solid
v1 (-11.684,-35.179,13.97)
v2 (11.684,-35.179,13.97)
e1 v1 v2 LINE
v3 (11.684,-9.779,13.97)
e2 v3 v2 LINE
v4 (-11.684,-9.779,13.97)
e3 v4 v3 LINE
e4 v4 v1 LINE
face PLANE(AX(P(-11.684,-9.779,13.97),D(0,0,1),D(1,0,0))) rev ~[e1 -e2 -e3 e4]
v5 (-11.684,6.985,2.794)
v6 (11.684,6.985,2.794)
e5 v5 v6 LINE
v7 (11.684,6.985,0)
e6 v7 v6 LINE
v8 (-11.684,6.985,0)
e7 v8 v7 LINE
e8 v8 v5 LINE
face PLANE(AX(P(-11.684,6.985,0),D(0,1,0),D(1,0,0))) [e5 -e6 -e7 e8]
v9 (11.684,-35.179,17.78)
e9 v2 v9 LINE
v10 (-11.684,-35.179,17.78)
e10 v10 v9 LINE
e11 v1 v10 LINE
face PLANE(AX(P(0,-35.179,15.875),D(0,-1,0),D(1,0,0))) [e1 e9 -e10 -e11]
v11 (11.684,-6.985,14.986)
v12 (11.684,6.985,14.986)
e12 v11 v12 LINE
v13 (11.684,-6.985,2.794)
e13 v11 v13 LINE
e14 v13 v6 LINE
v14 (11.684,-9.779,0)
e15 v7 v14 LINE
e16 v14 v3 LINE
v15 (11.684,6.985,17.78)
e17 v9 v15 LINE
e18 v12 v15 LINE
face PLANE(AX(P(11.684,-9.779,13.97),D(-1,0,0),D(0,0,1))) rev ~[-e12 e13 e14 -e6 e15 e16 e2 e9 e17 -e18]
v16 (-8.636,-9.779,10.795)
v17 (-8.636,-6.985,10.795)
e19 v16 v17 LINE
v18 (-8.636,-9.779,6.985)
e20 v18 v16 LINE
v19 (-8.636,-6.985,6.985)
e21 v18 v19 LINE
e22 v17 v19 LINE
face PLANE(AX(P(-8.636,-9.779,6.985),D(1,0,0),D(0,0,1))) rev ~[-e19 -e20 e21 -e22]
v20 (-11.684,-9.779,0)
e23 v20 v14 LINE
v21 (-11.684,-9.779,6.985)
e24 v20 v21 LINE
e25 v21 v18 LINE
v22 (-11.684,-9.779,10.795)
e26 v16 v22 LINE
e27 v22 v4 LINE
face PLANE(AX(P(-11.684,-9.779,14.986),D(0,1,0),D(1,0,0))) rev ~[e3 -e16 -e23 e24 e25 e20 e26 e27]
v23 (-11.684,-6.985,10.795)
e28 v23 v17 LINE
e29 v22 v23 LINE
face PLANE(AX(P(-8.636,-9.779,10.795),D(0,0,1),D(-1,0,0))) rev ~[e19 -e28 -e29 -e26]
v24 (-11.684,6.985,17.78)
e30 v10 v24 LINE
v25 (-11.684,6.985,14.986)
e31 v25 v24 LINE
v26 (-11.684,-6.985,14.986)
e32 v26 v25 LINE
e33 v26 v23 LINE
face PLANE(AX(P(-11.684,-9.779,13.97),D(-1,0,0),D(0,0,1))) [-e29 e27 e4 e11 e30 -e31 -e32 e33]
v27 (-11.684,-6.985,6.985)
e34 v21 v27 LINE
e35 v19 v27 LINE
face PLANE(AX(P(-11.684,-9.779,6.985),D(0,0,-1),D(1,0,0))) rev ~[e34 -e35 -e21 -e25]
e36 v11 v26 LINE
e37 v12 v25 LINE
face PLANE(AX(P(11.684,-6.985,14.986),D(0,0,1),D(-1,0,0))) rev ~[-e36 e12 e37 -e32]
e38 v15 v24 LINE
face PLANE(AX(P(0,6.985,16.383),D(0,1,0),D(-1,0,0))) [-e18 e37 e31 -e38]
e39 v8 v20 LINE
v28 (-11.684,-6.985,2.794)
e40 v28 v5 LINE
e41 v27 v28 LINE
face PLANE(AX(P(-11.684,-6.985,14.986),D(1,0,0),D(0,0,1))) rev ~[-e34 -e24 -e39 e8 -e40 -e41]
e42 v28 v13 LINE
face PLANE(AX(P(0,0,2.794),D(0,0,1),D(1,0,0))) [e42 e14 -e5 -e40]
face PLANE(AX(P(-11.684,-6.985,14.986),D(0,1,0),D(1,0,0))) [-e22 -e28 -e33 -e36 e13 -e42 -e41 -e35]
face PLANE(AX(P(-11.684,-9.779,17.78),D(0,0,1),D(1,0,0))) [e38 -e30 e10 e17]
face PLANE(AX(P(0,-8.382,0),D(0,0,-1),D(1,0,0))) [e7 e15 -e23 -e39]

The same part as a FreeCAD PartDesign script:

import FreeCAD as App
import Part
import Sketcher
from FreeCAD import Vector
Q = App.Units.Quantity

doc = App.newDocument("Part")
body = doc.addObject("PartDesign::Body", "Body")

# Sketch on XY plane
sketch1 = body.newObject("Sketcher::SketchObject", "Sketch")
sketch1.AttachmentSupport = (doc.getObject("XY_Plane"), [""])
sketch1.MapMode = "FlatFace"
sketch1.addGeometry([
    Part.LineSegment(Vector(-11.684, 6.985, 0), Vector(-11.684, -6.985, 0)),
    Part.LineSegment(Vector(-11.684, -6.985, 0), Vector(11.684, -6.985, 0)),
    Part.LineSegment(Vector(11.684, -6.985, 0), Vector(11.684, 6.985, 0)),
    Part.LineSegment(Vector(11.684, 6.985, 0), Vector(-11.684, 6.985, 0)),
], False)
sketch1.addConstraint([
    Sketcher.Constraint("Coincident", 0, 2, 1, 1),
    Sketcher.Constraint("Coincident", 1, 2, 2, 1),
    Sketcher.Constraint("Coincident", 2, 2, 3, 1),
    Sketcher.Constraint("Coincident", 3, 2, 0, 1),
    Sketcher.Constraint("Vertical", 0),
    Sketcher.Constraint("Horizontal", 1),
    Sketcher.Constraint("Vertical", 2),
    Sketcher.Constraint("Horizontal", 3),
    Sketcher.Constraint("Symmetric", 0, 2, 2, 2, -1, 1),
    Sketcher.Constraint("DistanceX", 1, 1, 1, 2, Q("0.92 in")),
    Sketcher.Constraint("DistanceY", 0, 2, 0, 1, Q("0.55 in")),
])
pad1 = body.newObject("PartDesign::Pad", "Pad")
pad1.Profile = sketch1
pad1.Length = Q("0.11 in")

# Sketch on XY plane
sketch2 = body.newObject("Sketcher::SketchObject", "Sketch001")
sketch2.AttachmentSupport = (doc.getObject("XY_Plane"), [""])
sketch2.MapMode = "FlatFace"
sketch2.addGeometry([
    Part.LineSegment(Vector(-11.684, -9.779, 0), Vector(-11.684, -6.985, 0)),
    Part.LineSegment(Vector(-11.684, -6.985, 0), Vector(11.684, -6.985, 0)),
    Part.LineSegment(Vector(11.684, -6.985, 0), Vector(11.684, -9.779, 0)),
    Part.LineSegment(Vector(11.684, -9.779, 0), Vector(-11.684, -9.779, 0)),
], False)
sketch2.addConstraint([
    Sketcher.Constraint("Coincident", 0, 2, 1, 1),
    Sketcher.Constraint("Coincident", 1, 2, 2, 1),
    Sketcher.Constraint("Coincident", 2, 2, 3, 1),
    Sketcher.Constraint("Coincident", 3, 2, 0, 1),
    Sketcher.Constraint("Vertical", 0),
    Sketcher.Constraint("Horizontal", 1),
    Sketcher.Constraint("Vertical", 2),
    Sketcher.Constraint("Horizontal", 3),
    Sketcher.Constraint("DistanceX", 1, 1, 1, 2, Q("0.92 in")),
    Sketcher.Constraint("DistanceY", 0, 1, 0, 2, Q("0.11 in")),
    Sketcher.Constraint("DistanceX", 0, 2, -1, 1, Q("0.46 in")),
    Sketcher.Constraint("DistanceY", 0, 2, -1, 1, Q("0.275 in")),
])
pad2 = body.newObject("PartDesign::Pad", "Pad001")
pad2.Profile = sketch2
pad2.Length = Q("0.59 in")

# Sketch on XY plane
sketch3 = body.newObject("Sketcher::SketchObject", "Sketch002")
sketch3.AttachmentSupport = (doc.getObject("XY_Plane"), [""])
sketch3.MapMode = "FlatFace"
sketch3.AttachmentOffset = App.Placement(Vector(0, 0, 0.59 * 25.4), App.Rotation())
sketch3.addGeometry([
    Part.LineSegment(Vector(-11.684, -6.985, 0), Vector(-11.684, -9.779, 0)),
    Part.LineSegment(Vector(-11.684, -9.779, 0), Vector(11.684, -9.779, 0)),
    Part.LineSegment(Vector(11.684, -9.779, 0), Vector(11.684, -6.985, 0)),
    Part.LineSegment(Vector(11.684, -6.985, 0), Vector(-11.684, -6.985, 0)),
], False)
sketch3.addConstraint([
    Sketcher.Constraint("Coincident", 0, 2, 1, 1),
    Sketcher.Constraint("Coincident", 1, 2, 2, 1),
    Sketcher.Constraint("Coincident", 2, 2, 3, 1),
    Sketcher.Constraint("Coincident", 3, 2, 0, 1),
    Sketcher.Constraint("Vertical", 0),
    Sketcher.Constraint("Horizontal", 1),
    Sketcher.Constraint("Vertical", 2),
    Sketcher.Constraint("Horizontal", 3),
    Sketcher.Constraint("DistanceX", 1, 1, 1, 2, Q("0.92 in")),
    Sketcher.Constraint("DistanceY", 0, 2, 0, 1, Q("0.11 in")),
    Sketcher.Constraint("DistanceX", 0, 2, -1, 1, Q("0.46 in")),
    Sketcher.Constraint("DistanceY", 0, 2, -1, 1, Q("0.385 in")),
])
pad3 = body.newObject("PartDesign::Pad", "Pad002")
pad3.Profile = sketch3
pad3.Length = Q("0.11 in")

# Sketch on XZ plane
sketch4 = body.newObject("Sketcher::SketchObject", "Sketch003")
sketch4.AttachmentSupport = (doc.getObject("XZ_Plane"), [""])
sketch4.MapMode = "FlatFace"
sketch4.AttachmentOffset = App.Placement(Vector(0, 0, 0.275 * 25.4), App.Rotation())
sketch4.addGeometry([
    Part.LineSegment(Vector(11.684, 17.78, 0), Vector(11.684, 14.986, 0)),
    Part.LineSegment(Vector(11.684, 14.986, 0), Vector(-11.684, 14.986, 0)),
    Part.LineSegment(Vector(-11.684, 14.986, 0), Vector(-11.684, 17.78, 0)),
    Part.LineSegment(Vector(-11.684, 17.78, 0), Vector(11.684, 17.78, 0)),
], False)
sketch4.addConstraint([
    Sketcher.Constraint("Coincident", 0, 2, 1, 1),
    Sketcher.Constraint("Coincident", 1, 2, 2, 1),
    Sketcher.Constraint("Coincident", 2, 2, 3, 1),
    Sketcher.Constraint("Coincident", 3, 2, 0, 1),
    Sketcher.Constraint("Vertical", 0),
    Sketcher.Constraint("Horizontal", 1),
    Sketcher.Constraint("Vertical", 2),
    Sketcher.Constraint("Horizontal", 3),
    Sketcher.Constraint("DistanceX", 1, 2, 1, 1, Q("0.92 in")),
    Sketcher.Constraint("DistanceY", 0, 2, 0, 1, Q("0.11 in")),
    Sketcher.Constraint("DistanceY", -1, 1, 2, 2, Q("0.7 in")),
    Sketcher.Constraint("DistanceX", -1, 1, 0, 2, Q("0.46 in")),
])
pad4 = body.newObject("PartDesign::Pad", "Pad003")
pad4.Profile = sketch4
pad4.Length = Q("0.55 in")
pad4.Reversed = True

# Sketch on XZ plane
sketch5 = body.newObject("Sketcher::SketchObject", "Sketch004")
sketch5.AttachmentSupport = (doc.getObject("XZ_Plane"), [""])
sketch5.MapMode = "FlatFace"
sketch5.AttachmentOffset = App.Placement(Vector(0, 0, 0.385 * 25.4), App.Rotation())
sketch5.addGeometry([
    Part.LineSegment(Vector(-8.636, 10.795, 0), Vector(-11.684, 10.795, 0)),
    Part.LineSegment(Vector(-11.684, 10.795, 0), Vector(-11.684, 6.985, 0)),
    Part.LineSegment(Vector(-11.684, 6.985, 0), Vector(-8.636, 6.985, 0)),
    Part.LineSegment(Vector(-8.636, 6.985, 0), Vector(-8.636, 10.795, 0)),
], False)
sketch5.addConstraint([
    Sketcher.Constraint("Coincident", 0, 2, 1, 1),
    Sketcher.Constraint("Coincident", 1, 2, 2, 1),
    Sketcher.Constraint("Coincident", 2, 2, 3, 1),
    Sketcher.Constraint("Coincident", 3, 2, 0, 1),
    Sketcher.Constraint("Horizontal", 0),
    Sketcher.Constraint("Vertical", 1),
    Sketcher.Constraint("Horizontal", 2),
    Sketcher.Constraint("Vertical", 3),
    Sketcher.Constraint("DistanceX", 0, 2, 0, 1, Q("0.12 in")),
    Sketcher.Constraint("DistanceY", 1, 2, 1, 1, Q("0.15 in")),
    Sketcher.Constraint("DistanceX", 0, 2, -1, 1, Q("0.46 in")),
    Sketcher.Constraint("DistanceY", -1, 1, 0, 2, Q("0.425 in")),
])
pocket1 = body.newObject("PartDesign::Pocket", "Pocket")
pocket1.Profile = sketch5
pocket1.Length = Q("1 in")

# Sketch on XZ plane
sketch6 = body.newObject("Sketcher::SketchObject", "Sketch005")
sketch6.AttachmentSupport = (doc.getObject("XZ_Plane"), [""])
sketch6.MapMode = "FlatFace"
sketch6.AttachmentOffset = App.Placement(Vector(0, 0, 0.385 * 25.4), App.Rotation())
sketch6.addGeometry([
    Part.LineSegment(Vector(-11.684, 17.78, 0), Vector(-11.684, 13.97, 0)),
    Part.LineSegment(Vector(-11.684, 13.97, 0), Vector(11.684, 13.97, 0)),
    Part.LineSegment(Vector(11.684, 13.97, 0), Vector(11.684, 17.78, 0)),
    Part.LineSegment(Vector(11.684, 17.78, 0), Vector(-11.684, 17.78, 0)),
], False)
sketch6.addConstraint([
    Sketcher.Constraint("Coincident", 0, 2, 1, 1),
    Sketcher.Constraint("Coincident", 1, 2, 2, 1),
    Sketcher.Constraint("Coincident", 2, 2, 3, 1),
    Sketcher.Constraint("Coincident", 3, 2, 0, 1),
    Sketcher.Constraint("Vertical", 0),
    Sketcher.Constraint("Horizontal", 1),
    Sketcher.Constraint("Vertical", 2),
    Sketcher.Constraint("Horizontal", 3),
    Sketcher.Constraint("DistanceX", 1, 1, 1, 2, Q("0.92 in")),
    Sketcher.Constraint("DistanceY", 0, 2, 0, 1, Q("0.15 in")),
    Sketcher.Constraint("DistanceY", -1, 1, 2, 2, Q("0.7 in")),
    Sketcher.Constraint("DistanceX", 0, 2, -1, 1, Q("0.46 in")),
])
pad5 = body.newObject("PartDesign::Pad", "Pad004")
pad5.Profile = sketch6
pad5.Length = Q("1 in")

doc.recompute()
